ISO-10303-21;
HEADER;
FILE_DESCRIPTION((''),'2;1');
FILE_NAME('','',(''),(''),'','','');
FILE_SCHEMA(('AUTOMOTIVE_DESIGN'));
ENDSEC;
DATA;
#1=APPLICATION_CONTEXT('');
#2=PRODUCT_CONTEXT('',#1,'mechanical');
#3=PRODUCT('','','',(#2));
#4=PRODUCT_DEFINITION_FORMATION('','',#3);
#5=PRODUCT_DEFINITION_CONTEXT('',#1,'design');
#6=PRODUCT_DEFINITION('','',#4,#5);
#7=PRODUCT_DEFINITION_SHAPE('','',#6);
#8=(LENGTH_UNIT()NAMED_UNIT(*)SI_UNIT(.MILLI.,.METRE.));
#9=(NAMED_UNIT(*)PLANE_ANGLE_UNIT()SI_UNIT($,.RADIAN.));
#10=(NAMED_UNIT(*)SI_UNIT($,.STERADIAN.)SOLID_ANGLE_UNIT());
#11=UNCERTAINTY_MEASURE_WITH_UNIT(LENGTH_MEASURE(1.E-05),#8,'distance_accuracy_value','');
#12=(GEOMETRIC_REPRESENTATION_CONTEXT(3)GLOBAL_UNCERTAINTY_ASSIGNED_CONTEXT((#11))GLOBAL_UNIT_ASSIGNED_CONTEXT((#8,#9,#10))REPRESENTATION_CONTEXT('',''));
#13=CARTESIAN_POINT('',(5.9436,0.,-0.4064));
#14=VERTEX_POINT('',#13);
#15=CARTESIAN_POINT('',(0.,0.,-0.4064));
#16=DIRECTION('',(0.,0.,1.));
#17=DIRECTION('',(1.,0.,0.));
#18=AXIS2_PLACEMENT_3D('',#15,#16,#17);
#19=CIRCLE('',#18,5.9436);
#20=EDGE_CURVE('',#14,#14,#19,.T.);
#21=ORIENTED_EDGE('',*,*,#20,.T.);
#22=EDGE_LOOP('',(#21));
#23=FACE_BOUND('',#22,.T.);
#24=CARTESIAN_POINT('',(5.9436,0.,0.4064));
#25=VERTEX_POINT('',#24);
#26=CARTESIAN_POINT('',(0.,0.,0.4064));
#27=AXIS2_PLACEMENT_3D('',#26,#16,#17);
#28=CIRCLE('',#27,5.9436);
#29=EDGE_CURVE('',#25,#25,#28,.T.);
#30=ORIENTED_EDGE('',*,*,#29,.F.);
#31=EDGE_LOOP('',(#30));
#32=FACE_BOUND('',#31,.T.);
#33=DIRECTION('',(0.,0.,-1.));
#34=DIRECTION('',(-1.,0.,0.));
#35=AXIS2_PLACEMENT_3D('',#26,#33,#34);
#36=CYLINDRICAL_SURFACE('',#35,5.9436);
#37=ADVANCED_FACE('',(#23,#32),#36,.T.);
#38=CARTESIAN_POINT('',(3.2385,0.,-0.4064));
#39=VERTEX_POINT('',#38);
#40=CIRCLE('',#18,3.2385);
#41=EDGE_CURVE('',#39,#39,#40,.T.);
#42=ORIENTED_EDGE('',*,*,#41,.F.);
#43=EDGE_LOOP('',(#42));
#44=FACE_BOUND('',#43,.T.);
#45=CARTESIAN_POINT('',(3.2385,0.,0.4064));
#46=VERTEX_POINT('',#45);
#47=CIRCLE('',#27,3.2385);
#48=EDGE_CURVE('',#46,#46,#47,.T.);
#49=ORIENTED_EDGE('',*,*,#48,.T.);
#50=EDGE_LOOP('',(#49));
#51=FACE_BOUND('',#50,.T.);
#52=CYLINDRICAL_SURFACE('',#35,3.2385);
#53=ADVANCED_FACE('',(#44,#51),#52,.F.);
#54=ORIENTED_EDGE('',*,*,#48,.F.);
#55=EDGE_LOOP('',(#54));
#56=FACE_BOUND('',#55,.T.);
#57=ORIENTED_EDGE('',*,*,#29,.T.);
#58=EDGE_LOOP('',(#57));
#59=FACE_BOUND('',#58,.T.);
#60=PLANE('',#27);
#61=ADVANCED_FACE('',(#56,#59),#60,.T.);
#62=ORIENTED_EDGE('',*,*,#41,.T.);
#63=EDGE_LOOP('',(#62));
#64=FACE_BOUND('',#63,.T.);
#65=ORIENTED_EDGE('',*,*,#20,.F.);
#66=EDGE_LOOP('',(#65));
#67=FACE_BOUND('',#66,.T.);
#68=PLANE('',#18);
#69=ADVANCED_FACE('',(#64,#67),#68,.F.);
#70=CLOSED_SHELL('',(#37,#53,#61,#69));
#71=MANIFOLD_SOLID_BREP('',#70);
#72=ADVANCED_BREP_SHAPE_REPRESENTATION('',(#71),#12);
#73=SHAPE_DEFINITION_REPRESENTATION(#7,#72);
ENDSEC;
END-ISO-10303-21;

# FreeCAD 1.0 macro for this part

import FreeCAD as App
import Part
import Sketcher
from FreeCAD import Vector
Q = App.Units.Quantity

doc = App.newDocument("Part")
body = doc.addObject("PartDesign::Body", "Body")

# Sketch on XY plane
sketch1 = body.newObject("Sketcher::SketchObject", "Sketch")
sketch1.AttachmentSupport = (doc.getObject("XY_Plane"), [""])
sketch1.MapMode = "FlatFace"
sketch1.addGeometry([
    Part.Circle(Vector(0, 0, 0), Vector(0, 0, 1), 5.9),
    Part.Circle(Vector(0, 0, 0), Vector(0, 0, 1), 3.2),
], False)
sketch1.addConstraint([
    Sketcher.Constraint("Coincident", 0, 3, -1, 1),
    Sketcher.Constraint("Coincident", 1, 3, -1, 1),
    Sketcher.Constraint("Diameter", 0, Q("0.468 in")),
    Sketcher.Constraint("Diameter", 1, Q("0.255 in")),
])
pad1 = body.newObject("PartDesign::Pad", "Pad")
pad1.Profile = sketch1
pad1.Length = Q("0.032 in")
pad1.Midplane = True

doc.recompute()
